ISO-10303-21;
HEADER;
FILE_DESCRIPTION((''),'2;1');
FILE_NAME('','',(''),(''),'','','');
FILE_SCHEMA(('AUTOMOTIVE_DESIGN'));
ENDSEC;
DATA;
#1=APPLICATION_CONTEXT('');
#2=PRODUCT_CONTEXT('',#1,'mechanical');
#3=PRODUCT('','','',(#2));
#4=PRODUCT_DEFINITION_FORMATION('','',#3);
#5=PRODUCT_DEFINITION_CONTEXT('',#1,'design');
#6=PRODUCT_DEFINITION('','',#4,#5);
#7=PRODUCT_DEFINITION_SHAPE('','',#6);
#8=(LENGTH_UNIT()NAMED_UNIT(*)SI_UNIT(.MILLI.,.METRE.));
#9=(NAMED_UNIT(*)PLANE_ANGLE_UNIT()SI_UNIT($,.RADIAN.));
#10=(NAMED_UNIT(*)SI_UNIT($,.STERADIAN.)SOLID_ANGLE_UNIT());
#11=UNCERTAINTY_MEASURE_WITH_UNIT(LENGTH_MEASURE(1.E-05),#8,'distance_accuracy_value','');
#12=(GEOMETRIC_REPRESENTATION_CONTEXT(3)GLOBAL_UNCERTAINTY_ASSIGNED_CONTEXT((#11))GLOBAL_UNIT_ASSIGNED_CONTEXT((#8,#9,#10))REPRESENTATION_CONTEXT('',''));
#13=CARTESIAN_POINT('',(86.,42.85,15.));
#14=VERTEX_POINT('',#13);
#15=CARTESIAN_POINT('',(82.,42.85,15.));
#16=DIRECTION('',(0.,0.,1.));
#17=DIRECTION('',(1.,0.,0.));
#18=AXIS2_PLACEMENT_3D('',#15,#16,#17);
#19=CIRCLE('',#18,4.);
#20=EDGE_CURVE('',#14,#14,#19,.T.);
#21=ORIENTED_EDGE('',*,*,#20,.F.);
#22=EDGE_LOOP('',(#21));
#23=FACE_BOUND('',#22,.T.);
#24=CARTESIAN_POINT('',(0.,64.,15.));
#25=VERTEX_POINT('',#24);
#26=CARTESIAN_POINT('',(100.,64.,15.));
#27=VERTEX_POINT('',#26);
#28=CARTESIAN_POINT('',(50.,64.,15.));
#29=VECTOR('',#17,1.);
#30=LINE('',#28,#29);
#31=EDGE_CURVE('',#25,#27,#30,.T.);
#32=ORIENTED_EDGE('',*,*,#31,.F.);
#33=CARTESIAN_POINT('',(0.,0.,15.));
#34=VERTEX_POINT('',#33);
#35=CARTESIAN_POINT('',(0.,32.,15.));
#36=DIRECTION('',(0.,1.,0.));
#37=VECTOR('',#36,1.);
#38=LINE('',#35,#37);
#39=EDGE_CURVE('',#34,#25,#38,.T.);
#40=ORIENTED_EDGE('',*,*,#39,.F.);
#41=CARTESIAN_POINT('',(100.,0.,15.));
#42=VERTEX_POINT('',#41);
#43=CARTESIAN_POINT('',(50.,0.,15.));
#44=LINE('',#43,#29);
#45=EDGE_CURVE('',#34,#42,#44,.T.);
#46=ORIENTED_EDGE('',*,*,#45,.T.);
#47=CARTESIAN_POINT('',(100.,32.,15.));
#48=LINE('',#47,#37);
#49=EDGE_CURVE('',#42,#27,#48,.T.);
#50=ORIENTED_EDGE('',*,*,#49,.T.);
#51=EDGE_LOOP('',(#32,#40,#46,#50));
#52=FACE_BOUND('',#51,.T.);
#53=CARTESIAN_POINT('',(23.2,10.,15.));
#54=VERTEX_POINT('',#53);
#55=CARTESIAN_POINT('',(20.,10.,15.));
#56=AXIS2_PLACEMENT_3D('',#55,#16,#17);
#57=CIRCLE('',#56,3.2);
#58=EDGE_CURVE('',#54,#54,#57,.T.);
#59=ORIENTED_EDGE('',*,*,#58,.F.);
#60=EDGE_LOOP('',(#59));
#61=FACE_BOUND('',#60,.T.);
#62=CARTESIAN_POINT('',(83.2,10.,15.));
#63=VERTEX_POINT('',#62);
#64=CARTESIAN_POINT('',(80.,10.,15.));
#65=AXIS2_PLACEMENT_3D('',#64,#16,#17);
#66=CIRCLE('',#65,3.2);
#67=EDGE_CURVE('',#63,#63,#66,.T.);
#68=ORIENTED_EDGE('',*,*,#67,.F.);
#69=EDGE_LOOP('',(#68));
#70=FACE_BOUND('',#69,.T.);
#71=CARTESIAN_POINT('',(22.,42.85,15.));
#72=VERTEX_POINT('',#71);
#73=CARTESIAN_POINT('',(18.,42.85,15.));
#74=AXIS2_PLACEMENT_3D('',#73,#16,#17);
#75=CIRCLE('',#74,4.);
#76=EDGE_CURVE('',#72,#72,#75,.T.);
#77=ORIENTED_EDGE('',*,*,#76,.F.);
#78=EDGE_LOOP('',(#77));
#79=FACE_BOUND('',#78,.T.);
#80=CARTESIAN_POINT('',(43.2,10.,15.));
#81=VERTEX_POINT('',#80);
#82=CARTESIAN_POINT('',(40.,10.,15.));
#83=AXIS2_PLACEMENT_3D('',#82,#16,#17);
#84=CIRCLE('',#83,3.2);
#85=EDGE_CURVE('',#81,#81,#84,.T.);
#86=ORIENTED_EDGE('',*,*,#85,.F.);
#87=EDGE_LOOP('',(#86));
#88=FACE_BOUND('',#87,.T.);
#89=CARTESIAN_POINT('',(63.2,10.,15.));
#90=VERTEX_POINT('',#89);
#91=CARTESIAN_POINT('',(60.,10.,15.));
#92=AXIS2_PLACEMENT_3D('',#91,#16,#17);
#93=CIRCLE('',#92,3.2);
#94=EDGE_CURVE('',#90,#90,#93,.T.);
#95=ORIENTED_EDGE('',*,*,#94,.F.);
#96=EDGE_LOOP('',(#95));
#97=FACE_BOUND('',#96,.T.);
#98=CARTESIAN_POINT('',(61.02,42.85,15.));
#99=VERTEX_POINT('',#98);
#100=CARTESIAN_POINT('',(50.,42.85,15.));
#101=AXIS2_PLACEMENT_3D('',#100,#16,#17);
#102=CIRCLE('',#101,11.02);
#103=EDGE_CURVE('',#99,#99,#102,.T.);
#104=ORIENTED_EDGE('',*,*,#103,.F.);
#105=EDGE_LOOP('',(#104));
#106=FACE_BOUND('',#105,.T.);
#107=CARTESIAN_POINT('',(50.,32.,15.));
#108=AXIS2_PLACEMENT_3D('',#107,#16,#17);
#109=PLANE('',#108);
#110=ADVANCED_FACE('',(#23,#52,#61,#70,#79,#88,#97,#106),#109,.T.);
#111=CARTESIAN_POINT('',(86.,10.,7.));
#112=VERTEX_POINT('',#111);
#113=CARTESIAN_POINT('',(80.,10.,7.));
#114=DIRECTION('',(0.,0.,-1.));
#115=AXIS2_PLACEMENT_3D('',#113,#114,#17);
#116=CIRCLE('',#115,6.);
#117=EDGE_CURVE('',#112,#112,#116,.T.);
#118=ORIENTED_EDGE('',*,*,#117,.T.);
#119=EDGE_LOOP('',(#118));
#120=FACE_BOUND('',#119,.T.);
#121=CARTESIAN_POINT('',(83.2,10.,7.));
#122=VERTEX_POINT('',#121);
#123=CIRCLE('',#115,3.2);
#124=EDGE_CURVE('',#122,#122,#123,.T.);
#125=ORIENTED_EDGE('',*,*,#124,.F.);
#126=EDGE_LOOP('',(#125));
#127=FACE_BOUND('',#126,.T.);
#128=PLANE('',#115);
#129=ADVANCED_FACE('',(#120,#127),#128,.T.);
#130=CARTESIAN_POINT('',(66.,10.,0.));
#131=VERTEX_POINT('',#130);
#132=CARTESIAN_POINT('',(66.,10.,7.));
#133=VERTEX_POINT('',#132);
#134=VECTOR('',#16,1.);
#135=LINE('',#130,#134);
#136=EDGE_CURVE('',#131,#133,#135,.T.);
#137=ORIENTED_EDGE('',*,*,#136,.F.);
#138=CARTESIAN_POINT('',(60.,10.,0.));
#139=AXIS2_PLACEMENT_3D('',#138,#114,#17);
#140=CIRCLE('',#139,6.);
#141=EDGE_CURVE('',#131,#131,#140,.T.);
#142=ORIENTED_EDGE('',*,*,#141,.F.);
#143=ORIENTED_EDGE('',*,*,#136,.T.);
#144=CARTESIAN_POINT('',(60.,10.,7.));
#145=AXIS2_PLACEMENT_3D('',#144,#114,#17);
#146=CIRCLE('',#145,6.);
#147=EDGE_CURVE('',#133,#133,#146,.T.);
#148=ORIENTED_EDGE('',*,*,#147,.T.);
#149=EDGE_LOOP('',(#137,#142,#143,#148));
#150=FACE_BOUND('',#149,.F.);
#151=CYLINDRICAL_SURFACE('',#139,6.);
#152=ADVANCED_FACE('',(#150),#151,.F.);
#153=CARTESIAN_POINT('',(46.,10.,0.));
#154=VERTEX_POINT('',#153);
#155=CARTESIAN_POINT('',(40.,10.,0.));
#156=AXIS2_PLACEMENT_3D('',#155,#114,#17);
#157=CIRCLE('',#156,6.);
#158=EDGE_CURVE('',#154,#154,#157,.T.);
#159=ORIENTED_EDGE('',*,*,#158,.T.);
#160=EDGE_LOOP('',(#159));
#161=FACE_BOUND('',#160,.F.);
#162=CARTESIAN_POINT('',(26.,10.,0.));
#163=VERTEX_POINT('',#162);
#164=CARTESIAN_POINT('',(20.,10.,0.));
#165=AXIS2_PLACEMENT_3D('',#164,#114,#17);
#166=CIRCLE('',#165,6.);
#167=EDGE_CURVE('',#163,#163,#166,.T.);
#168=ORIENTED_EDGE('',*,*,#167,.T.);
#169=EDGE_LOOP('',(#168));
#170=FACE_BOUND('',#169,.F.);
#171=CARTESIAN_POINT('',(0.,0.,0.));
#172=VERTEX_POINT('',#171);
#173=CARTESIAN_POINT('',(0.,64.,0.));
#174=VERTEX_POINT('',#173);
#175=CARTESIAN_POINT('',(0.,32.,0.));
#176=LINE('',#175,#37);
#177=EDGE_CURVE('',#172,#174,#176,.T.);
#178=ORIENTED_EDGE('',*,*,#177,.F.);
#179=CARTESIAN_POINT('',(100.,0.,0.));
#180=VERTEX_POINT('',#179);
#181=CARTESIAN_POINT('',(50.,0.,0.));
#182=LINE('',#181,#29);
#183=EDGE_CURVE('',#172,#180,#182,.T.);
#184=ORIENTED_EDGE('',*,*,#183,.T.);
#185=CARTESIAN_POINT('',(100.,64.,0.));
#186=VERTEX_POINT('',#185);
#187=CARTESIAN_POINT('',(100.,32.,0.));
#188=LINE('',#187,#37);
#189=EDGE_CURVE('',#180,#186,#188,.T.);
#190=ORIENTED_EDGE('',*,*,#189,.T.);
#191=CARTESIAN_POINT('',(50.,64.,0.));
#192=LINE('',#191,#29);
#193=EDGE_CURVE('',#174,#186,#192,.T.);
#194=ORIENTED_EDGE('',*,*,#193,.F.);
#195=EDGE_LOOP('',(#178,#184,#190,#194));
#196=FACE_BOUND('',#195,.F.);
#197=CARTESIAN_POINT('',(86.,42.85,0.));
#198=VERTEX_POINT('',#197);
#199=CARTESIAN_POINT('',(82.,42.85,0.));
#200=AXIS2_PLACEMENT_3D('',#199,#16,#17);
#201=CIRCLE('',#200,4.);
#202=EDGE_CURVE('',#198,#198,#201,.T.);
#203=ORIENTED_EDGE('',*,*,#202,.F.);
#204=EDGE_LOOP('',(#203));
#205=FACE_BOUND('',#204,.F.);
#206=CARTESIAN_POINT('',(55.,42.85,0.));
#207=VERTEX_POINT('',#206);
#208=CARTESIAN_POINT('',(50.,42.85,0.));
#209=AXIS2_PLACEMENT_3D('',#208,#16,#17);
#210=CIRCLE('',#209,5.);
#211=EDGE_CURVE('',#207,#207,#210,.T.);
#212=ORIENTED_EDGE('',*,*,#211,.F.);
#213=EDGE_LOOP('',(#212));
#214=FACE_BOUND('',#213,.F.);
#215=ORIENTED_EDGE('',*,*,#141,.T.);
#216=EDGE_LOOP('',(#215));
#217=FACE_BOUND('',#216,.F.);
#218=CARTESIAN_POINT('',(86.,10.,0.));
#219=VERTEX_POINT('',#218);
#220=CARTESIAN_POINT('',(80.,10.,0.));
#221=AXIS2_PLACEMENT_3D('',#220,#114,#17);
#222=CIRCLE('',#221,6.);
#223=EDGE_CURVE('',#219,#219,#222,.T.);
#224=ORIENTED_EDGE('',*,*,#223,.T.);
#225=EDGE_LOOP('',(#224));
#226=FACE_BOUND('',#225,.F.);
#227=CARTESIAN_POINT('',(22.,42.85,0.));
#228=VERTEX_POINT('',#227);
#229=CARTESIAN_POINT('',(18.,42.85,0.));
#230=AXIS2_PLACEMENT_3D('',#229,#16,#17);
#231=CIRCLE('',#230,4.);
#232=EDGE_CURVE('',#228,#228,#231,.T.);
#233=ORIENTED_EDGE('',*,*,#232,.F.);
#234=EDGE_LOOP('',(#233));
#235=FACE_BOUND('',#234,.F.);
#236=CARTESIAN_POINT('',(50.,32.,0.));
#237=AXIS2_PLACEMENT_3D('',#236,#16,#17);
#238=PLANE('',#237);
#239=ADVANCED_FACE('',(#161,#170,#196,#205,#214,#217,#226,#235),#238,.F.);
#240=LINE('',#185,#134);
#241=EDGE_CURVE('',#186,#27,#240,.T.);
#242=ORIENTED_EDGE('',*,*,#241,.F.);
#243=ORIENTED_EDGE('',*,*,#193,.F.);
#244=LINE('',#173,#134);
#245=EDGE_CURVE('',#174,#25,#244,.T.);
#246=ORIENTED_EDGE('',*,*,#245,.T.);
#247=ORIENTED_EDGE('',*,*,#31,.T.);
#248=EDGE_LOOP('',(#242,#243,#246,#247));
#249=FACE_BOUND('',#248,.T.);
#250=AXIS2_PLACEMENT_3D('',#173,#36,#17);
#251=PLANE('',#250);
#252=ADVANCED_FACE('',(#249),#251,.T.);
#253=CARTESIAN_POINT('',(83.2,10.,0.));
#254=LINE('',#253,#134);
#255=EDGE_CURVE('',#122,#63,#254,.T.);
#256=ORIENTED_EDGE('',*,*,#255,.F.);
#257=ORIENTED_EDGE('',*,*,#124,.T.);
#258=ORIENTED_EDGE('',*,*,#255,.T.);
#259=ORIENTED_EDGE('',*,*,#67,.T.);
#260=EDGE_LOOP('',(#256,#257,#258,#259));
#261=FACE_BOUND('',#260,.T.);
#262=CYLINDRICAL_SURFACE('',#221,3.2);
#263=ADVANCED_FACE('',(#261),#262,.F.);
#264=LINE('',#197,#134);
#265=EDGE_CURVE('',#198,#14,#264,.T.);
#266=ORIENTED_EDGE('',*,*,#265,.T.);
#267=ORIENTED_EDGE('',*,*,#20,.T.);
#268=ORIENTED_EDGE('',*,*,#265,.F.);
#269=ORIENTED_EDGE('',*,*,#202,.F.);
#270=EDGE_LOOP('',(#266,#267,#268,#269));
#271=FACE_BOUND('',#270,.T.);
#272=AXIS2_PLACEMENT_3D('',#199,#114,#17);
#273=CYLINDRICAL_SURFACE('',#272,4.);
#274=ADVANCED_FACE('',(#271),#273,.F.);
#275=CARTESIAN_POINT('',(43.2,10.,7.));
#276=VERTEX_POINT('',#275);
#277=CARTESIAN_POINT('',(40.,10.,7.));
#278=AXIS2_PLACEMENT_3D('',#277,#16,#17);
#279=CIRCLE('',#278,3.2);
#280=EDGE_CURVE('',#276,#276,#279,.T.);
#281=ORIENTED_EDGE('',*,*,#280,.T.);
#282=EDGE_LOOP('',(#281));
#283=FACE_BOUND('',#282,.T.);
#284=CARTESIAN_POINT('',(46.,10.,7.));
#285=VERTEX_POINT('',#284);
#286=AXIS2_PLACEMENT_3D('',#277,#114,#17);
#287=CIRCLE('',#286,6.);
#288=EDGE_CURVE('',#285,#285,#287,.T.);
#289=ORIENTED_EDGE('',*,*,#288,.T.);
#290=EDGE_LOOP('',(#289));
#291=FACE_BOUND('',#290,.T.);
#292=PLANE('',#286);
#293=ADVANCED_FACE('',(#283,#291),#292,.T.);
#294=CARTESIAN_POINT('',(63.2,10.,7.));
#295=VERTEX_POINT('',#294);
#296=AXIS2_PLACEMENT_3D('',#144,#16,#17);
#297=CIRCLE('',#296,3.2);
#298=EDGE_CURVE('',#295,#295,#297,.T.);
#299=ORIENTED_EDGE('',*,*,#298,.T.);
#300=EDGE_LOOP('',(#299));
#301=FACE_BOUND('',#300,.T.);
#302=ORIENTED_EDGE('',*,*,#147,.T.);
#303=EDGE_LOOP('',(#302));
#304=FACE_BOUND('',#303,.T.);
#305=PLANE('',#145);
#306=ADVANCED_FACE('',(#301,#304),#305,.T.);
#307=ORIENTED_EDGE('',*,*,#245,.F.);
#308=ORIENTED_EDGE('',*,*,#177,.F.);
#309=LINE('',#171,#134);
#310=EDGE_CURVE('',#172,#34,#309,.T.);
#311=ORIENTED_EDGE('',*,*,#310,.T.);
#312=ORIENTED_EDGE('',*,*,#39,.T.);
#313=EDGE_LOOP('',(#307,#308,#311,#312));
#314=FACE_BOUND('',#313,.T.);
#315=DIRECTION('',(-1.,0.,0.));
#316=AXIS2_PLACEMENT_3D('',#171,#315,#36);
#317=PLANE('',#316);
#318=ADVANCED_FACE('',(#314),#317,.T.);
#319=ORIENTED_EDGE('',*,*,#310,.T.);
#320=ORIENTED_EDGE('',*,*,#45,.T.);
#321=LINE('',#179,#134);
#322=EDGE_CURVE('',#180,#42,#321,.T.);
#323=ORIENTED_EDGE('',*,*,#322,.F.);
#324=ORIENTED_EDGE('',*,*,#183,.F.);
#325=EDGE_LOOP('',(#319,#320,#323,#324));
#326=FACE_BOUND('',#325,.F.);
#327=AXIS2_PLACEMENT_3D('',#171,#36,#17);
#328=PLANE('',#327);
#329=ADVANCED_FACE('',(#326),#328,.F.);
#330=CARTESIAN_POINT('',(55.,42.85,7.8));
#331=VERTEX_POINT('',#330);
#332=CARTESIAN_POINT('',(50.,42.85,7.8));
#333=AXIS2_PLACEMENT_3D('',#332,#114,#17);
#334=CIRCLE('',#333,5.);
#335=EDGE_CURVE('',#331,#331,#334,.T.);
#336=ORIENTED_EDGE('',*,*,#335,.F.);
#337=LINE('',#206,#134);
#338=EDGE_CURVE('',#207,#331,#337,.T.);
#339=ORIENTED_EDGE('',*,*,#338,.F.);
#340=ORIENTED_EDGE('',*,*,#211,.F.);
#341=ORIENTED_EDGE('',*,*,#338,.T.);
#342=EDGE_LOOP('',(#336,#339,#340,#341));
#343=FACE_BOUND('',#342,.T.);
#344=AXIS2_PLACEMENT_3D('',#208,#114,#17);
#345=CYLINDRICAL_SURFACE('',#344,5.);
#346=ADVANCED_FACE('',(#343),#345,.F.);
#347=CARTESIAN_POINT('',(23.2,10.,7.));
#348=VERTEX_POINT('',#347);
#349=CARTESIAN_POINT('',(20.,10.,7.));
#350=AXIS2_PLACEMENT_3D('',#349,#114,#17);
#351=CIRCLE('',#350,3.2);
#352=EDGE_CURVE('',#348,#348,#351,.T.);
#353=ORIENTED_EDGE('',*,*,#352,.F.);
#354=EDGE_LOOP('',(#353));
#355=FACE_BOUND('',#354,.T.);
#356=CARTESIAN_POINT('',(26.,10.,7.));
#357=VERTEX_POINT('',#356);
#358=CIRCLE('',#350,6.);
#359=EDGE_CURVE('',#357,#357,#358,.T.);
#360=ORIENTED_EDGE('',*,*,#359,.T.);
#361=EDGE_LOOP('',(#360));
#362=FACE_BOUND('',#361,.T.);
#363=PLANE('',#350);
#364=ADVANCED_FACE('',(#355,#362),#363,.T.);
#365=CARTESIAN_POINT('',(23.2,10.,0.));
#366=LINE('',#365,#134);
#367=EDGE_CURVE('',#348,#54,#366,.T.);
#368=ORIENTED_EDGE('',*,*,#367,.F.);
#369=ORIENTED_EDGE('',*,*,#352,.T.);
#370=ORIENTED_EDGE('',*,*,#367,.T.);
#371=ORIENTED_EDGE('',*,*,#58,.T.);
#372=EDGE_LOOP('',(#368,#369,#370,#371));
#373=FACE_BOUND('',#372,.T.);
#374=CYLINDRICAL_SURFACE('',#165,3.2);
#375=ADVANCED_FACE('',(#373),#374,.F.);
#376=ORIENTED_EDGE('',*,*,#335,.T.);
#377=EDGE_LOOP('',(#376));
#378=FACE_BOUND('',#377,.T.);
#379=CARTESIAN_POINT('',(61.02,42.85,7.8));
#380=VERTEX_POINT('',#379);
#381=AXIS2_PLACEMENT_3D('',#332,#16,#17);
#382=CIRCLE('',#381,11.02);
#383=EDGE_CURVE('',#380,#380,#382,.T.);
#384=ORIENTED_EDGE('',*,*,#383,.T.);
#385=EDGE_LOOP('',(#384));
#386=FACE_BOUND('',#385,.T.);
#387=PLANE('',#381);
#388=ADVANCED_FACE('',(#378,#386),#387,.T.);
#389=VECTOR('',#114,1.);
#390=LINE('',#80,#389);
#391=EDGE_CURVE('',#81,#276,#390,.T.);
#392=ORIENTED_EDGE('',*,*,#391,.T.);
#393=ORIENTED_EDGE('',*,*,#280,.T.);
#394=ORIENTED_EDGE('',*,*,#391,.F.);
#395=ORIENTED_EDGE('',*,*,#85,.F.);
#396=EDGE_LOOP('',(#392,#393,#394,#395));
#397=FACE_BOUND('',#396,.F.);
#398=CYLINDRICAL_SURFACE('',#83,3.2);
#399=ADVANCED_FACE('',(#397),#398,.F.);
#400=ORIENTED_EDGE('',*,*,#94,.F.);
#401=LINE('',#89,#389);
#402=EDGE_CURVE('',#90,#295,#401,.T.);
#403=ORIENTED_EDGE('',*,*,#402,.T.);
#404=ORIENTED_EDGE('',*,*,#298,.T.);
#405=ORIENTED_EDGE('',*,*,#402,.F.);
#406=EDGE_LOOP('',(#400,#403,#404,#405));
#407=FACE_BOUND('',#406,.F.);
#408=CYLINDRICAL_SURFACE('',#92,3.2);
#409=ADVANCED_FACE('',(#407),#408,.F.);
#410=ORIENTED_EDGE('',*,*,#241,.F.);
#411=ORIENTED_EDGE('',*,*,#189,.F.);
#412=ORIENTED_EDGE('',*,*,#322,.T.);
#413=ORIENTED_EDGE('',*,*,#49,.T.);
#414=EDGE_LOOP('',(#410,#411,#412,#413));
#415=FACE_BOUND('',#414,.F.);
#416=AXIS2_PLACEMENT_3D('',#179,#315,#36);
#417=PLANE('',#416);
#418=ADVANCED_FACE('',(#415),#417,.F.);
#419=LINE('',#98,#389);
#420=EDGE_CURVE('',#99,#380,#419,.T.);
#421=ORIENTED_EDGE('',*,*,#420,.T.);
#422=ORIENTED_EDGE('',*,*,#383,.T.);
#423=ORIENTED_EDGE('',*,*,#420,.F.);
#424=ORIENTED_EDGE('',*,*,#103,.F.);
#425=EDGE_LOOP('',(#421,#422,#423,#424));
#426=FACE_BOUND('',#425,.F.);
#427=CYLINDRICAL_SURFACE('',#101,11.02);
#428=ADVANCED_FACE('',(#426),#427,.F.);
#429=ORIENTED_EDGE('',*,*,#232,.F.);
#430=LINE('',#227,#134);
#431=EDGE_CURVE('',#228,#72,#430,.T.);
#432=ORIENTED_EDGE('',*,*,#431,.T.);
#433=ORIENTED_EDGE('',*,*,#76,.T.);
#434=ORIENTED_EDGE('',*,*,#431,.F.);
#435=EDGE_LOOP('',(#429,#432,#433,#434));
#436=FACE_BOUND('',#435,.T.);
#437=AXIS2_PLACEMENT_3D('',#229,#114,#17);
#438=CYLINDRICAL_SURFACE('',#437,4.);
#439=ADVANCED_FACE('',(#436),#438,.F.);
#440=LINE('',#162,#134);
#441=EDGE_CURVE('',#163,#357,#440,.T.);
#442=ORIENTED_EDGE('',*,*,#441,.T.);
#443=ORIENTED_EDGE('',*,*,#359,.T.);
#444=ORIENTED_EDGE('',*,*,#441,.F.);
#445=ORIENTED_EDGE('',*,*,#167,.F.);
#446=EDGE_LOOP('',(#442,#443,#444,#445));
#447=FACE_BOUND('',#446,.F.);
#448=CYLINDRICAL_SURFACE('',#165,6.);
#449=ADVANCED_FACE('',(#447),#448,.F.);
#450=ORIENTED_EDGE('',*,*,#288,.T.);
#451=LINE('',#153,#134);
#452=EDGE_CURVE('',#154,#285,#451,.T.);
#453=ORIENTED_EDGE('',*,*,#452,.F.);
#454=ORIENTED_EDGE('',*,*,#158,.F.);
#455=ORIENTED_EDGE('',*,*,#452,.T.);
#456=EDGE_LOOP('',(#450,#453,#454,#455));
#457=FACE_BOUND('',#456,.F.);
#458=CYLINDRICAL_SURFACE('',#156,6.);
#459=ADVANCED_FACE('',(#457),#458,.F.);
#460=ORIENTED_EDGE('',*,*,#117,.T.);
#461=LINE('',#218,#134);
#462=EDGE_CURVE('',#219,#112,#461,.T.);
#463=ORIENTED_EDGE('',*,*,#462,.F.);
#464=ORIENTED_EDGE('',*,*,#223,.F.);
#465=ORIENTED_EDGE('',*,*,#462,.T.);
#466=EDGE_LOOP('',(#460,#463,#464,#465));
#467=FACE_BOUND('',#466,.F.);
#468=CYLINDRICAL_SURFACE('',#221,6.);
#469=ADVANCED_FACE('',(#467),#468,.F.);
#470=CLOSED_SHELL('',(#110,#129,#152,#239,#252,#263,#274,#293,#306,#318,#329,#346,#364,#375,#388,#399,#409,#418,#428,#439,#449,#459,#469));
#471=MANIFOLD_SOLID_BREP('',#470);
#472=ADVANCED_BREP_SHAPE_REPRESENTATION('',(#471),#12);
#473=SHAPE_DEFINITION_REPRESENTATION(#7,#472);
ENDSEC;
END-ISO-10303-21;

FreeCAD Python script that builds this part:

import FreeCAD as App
import Part
import Sketcher

V = App.Vector

doc = App.newDocument("Part")
body = doc.addObject("PartDesign::Body", "Body")

# Sketch on XY plane
sketch1 = body.newObject("Sketcher::SketchObject", "Sketch")
sketch1.AttachmentSupport = (doc.getObject("XY_Plane"), [""])
sketch1.MapMode = "FlatFace"
sketch1.addGeometry([
    Part.LineSegment(V(0, 64, 0), V(0, 0, 0)),  # 0
    Part.LineSegment(V(0, 0, 0), V(100, 0, 0)),  # 1
    Part.LineSegment(V(100, 0, 0), V(100, 64, 0)),  # 2
    Part.LineSegment(V(100, 64, 0), V(0, 64, 0)),  # 3
    Part.Circle(V(20, 10, 0), V(0, 0, 1), 3.2),  # 4
    Part.Circle(V(80, 10, 0), V(0, 0, 1), 3.2),  # 5
    Part.Circle(V(18, 42.85, 0), V(0, 0, 1), 4),  # 6
    Part.Circle(V(50, 42.85, 0), V(0, 0, 1), 5),  # 7
    Part.Circle(V(82, 42.85, 0), V(0, 0, 1), 4),  # 8
], False)
sketch1.addConstraint([
    Sketcher.Constraint("Coincident", 0, 2, 1, 1),
    Sketcher.Constraint("Coincident", 1, 2, 2, 1),
    Sketcher.Constraint("Coincident", 2, 2, 3, 1),
    Sketcher.Constraint("Coincident", 3, 2, 0, 1),
    Sketcher.Constraint("Vertical", 0),
    Sketcher.Constraint("Horizontal", 1),
    Sketcher.Constraint("Vertical", 2),
    Sketcher.Constraint("Horizontal", 3),
    Sketcher.Constraint("Coincident", 0, 2, -1, 1),
    Sketcher.Constraint("Equal", 4, 5),
    Sketcher.Constraint("Equal", 6, 8),
    Sketcher.Constraint("Horizontal", 4, 3, 5, 3),
    Sketcher.Constraint("Horizontal", 6, 3, 7, 3),
    Sketcher.Constraint("Horizontal", 7, 3, 8, 3),
    Sketcher.Constraint("Diameter", 6, 8.0),
    Sketcher.Constraint("Diameter", 7, 10.0),
    Sketcher.Constraint("Diameter", 4, 6.4),
    Sketcher.Constraint("DistanceX", 1, 1, 1, 2, 100.0),
    Sketcher.Constraint("DistanceY", 0, 2, 0, 1, 64.0),
    Sketcher.Constraint("DistanceX", -1, 1, 4, 3, 20.0),
    Sketcher.Constraint("DistanceY", -1, 1, 4, 3, 10.0),
    Sketcher.Constraint("DistanceX", -1, 1, 5, 3, 80.0),
    Sketcher.Constraint("DistanceX", -1, 1, 6, 3, 18.0),
    Sketcher.Constraint("DistanceX", -1, 1, 7, 3, 50.0),
    Sketcher.Constraint("DistanceX", -1, 1, 8, 3, 82.0),
    Sketcher.Constraint("DistanceY", -1, 1, 6, 3, 42.85),
])
pad1 = body.newObject("PartDesign::Pad", "Pad")
pad1.Profile = sketch1
pad1.Length = 15

# Sketch on XY plane
sketch2 = body.newObject("Sketcher::SketchObject", "Sketch001")
sketch2.AttachmentSupport = (doc.getObject("XY_Plane"), [""])
sketch2.MapMode = "FlatFace"
sketch2.AttachmentOffset = App.Placement(V(0, 0, 15), App.Rotation())
sketch2.addGeometry(Part.Circle(V(50, 42.85, 0), V(0, 0, 1), 11.02), False)
sketch2.addConstraint([
    Sketcher.Constraint("Diameter", 0, 22.04),
    Sketcher.Constraint("DistanceX", -1, 1, 0, 3, 50.0),
    Sketcher.Constraint("DistanceY", -1, 1, 0, 3, 42.85),
])
pocket1 = body.newObject("PartDesign::Pocket", "Pocket")
pocket1.Profile = sketch2
pocket1.Length = 7.2

# Sketch on XY plane
sketch3 = body.newObject("Sketcher::SketchObject", "Sketch002")
sketch3.AttachmentSupport = (doc.getObject("XY_Plane"), [""])
sketch3.MapMode = "FlatFace"
sketch3.addGeometry([
    Part.Circle(V(20, 10, 0), V(0, 0, 1), 6),
    Part.Circle(V(80, 10, 0), V(0, 0, 1), 6),
    Part.Circle(V(40, 10, 0), V(0, 0, 1), 6),
    Part.Circle(V(60, 10, 0), V(0, 0, 1), 6),
], False)
sketch3.addConstraint([
    Sketcher.Constraint("Equal", 0, 1),
    Sketcher.Constraint("Equal", 1, 2),
    Sketcher.Constraint("Equal", 2, 3),
    Sketcher.Constraint("Horizontal", 0, 3, 1, 3),
    Sketcher.Constraint("Horizontal", 1, 3, 2, 3),
    Sketcher.Constraint("Horizontal", 2, 3, 3, 3),
    Sketcher.Constraint("Diameter", 0, 12.0),
    Sketcher.Constraint("DistanceX", -1, 1, 0, 3, 20.0),
    Sketcher.Constraint("DistanceY", -1, 1, 0, 3, 10.0),
    Sketcher.Constraint("DistanceX", -1, 1, 1, 3, 80.0),
    Sketcher.Constraint("DistanceX", -1, 1, 2, 3, 40.0),
    Sketcher.Constraint("DistanceX", -1, 1, 3, 3, 60.0),
])
pocket2 = body.newObject("PartDesign::Pocket", "Pocket001")
pocket2.Profile = sketch3
pocket2.Length = 7
pocket2.Reversed = True

# Sketch on XY plane
sketch4 = body.newObject("Sketcher::SketchObject", "Sketch003")
sketch4.AttachmentSupport = (doc.getObject("XY_Plane"), [""])
sketch4.MapMode = "FlatFace"
sketch4.AttachmentOffset = App.Placement(V(0, 0, 15), App.Rotation())
sketch4.addGeometry([
    Part.Circle(V(40, 10, 0), V(0, 0, 1), 3.2),
    Part.Circle(V(60, 10, 0), V(0, 0, 1), 3.2),
], False)
sketch4.addConstraint([
    Sketcher.Constraint("Equal", 0, 1),
    Sketcher.Constraint("Horizontal", 0, 3, 1, 3),
    Sketcher.Constraint("Diameter", 0, 6.4),
    Sketcher.Constraint("DistanceX", -1, 1, 0, 3, 40.0),
    Sketcher.Constraint("DistanceY", -1, 1, 0, 3, 10.0),
    Sketcher.Constraint("DistanceX", -1, 1, 1, 3, 60.0),
])
pocket3 = body.newObject("PartDesign::Pocket", "Pocket002")
pocket3.Profile = sketch4
pocket3.Length = 15

doc.recompute()
